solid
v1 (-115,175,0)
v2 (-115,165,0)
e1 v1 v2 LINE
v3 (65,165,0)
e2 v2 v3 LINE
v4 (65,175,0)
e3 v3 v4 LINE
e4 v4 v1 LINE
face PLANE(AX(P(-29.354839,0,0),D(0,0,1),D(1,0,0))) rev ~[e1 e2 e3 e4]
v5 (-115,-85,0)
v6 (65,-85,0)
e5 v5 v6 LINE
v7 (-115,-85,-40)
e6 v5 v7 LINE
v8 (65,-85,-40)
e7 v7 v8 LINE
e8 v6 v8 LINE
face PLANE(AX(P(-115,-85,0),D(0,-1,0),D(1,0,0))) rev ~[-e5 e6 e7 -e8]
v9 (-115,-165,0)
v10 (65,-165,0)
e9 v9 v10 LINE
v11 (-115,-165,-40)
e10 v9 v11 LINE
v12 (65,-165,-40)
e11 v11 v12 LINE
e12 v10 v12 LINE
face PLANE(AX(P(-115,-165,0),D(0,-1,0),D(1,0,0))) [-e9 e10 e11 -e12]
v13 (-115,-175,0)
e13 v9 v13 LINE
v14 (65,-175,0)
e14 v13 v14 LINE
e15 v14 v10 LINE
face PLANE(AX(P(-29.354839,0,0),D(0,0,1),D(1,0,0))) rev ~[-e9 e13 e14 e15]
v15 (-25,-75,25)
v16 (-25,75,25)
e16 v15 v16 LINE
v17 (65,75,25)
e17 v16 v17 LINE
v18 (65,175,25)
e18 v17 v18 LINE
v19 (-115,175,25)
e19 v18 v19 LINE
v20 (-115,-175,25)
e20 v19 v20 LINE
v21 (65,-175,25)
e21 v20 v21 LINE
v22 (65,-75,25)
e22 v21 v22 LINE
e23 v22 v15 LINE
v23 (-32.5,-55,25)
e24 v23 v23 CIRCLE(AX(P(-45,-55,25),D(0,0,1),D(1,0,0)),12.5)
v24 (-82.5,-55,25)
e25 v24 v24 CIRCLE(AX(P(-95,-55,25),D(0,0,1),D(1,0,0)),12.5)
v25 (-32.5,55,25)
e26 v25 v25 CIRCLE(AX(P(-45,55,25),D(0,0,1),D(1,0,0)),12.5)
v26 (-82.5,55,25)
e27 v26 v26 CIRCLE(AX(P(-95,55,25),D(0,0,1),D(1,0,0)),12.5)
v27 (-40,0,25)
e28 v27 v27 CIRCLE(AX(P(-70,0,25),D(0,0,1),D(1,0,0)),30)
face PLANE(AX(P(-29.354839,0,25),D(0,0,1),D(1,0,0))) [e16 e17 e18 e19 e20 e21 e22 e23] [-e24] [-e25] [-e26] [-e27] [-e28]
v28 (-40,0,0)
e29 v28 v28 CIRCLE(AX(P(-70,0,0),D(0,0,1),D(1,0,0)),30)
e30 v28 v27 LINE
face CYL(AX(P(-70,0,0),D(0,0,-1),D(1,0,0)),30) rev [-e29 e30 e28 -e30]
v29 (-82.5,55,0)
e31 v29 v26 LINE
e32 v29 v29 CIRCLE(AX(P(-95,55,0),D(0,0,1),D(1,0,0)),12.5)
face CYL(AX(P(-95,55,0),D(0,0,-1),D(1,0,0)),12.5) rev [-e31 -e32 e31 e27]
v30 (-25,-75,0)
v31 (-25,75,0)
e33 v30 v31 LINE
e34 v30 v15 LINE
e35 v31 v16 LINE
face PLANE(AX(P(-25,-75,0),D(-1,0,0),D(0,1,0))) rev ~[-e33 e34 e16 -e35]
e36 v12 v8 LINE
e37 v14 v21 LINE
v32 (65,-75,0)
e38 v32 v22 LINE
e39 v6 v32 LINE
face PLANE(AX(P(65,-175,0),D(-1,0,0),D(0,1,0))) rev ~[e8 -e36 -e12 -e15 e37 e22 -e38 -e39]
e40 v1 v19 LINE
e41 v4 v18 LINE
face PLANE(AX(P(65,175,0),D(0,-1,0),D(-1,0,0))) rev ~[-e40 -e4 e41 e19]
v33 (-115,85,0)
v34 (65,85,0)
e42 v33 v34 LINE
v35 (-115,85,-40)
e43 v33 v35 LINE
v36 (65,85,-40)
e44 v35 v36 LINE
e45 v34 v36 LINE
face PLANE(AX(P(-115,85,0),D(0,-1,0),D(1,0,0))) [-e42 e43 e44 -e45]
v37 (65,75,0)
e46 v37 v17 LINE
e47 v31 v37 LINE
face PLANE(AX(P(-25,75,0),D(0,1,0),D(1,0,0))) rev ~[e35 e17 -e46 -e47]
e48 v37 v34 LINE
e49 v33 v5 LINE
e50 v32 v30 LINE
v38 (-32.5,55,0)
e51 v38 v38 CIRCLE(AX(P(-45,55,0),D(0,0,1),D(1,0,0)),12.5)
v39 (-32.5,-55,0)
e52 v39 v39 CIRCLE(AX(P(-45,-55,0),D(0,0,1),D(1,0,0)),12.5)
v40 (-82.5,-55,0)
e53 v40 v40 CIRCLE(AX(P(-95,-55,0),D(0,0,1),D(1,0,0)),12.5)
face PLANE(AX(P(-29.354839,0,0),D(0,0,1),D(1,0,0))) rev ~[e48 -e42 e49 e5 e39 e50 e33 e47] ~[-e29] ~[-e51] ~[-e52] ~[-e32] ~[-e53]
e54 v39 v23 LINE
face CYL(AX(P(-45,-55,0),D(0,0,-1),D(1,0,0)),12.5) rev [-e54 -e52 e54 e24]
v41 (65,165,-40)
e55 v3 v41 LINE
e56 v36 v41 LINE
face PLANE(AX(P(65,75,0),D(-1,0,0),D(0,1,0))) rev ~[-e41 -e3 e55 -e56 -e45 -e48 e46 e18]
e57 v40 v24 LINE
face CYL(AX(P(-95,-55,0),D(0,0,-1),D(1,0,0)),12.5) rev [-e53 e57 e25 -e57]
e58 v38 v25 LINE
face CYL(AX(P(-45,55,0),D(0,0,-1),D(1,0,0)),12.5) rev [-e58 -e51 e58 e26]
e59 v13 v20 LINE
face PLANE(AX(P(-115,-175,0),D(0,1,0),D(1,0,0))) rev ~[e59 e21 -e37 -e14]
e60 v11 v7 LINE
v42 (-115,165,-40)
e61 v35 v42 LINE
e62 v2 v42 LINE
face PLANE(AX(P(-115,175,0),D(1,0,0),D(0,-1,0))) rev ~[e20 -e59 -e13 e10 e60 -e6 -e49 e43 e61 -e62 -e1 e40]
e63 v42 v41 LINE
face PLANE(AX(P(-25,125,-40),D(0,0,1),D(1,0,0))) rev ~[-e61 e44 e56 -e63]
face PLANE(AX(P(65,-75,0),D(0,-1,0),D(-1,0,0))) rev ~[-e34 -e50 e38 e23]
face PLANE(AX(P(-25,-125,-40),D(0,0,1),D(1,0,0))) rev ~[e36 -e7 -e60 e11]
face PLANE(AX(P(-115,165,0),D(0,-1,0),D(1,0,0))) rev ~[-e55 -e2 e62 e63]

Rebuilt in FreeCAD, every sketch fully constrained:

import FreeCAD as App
import Part
import Sketcher

V = App.Vector


def add_polygon(sketch, points):
    """Adds a closed chain of lines whose ends are joined by coincident constraints."""
    first, n = sketch.GeometryCount, len(points)
    for a, b in zip(points, points[1:] + points[:1]):
        sketch.addGeometry(Part.LineSegment(App.Vector(*a, 0), App.Vector(*b, 0)), False)
    for i in range(n):
        sketch.addConstraint(Sketcher.Constraint("Coincident", first + i, 2, first + (i + 1) % n, 1))

doc = App.newDocument("Part")
params = doc.addObject("Spreadsheet::Sheet", "Params")
for row, (alias, value) in enumerate([
    ("sketch1_diameter", "25 mm"),
    ("sketch1_diameter2", "60 mm"),
    ("sketch1_width", "180 mm"),
    ("sketch1_width2", "90 mm"),
    ("sketch1_height", "100 mm"),
    ("pad1_length", "25 mm"),
    ("sketch2_width", "180 mm"),
    ("sketch2_height", "80 mm"),
    ("pad2_length", "40 mm"),
], start=1):
    params.set(f"A{row}", alias)
    params.set(f"B{row}", "=" + value)
    params.setAlias(f"B{row}", alias)

body = doc.addObject("PartDesign::Body", "Body")

sketch1 = doc.addObject("Sketcher::SketchObject", "Sketch")
body.addObject(sketch1)
sketch1.AttachmentSupport = (doc.XY_Plane, [""])
sketch1.MapMode = "FlatFace"
add_polygon(sketch1, [(65, 75), (65, 175), (-115, 175), (-115, -175), (65, -175), (65, -75), (-25, -75), (-25, 75)])
sketch1.addGeometry(Part.Circle(V(-95, -55, 0), V(0, 0, 1), 12), False)
sketch1.addGeometry(Part.Circle(V(-45, -55, 0), V(0, 0, 1), 12), False)
sketch1.addGeometry(Part.Circle(V(-95, 55, 0), V(0, 0, 1), 12), False)
sketch1.addGeometry(Part.Circle(V(-70, 0, 0), V(0, 0, 1), 30), False)
sketch1.addGeometry(Part.Circle(V(-45, 55, 0), V(0, 0, 1), 12), False)
sketch1.addConstraint(Sketcher.Constraint("Vertical", 0))
sketch1.addConstraint(Sketcher.Constraint("Horizontal", 1))
sketch1.addConstraint(Sketcher.Constraint("Vertical", 2))
sketch1.addConstraint(Sketcher.Constraint("Horizontal", 3))
sketch1.addConstraint(Sketcher.Constraint("Vertical", 4))
sketch1.addConstraint(Sketcher.Constraint("Horizontal", 5))
sketch1.addConstraint(Sketcher.Constraint("Vertical", 6))
sketch1.addConstraint(Sketcher.Constraint("Horizontal", 7))
sketch1.addConstraint(Sketcher.Constraint("Equal", 8, 9))
sketch1.addConstraint(Sketcher.Constraint("Equal", 9, 10))
sketch1.addConstraint(Sketcher.Constraint("Equal", 10, 12))
sketch1.addConstraint(Sketcher.Constraint("Symmetric", 8, 3, 10, 3, -1))
sketch1.addConstraint(Sketcher.Constraint("Symmetric", 9, 3, 12, 3, -1))
sketch1.addConstraint(Sketcher.Constraint("Symmetric", 0, 2, 3, 2, -1))
sketch1.addConstraint(Sketcher.Constraint("PointOnObject", 11, 3, -1))
sketch1.addConstraint(Sketcher.Constraint("Horizontal", 8, 3, 9, 3))
sketch1.addConstraint(Sketcher.Constraint("Equal", 0, 4))
sketch1.addConstraint(Sketcher.Constraint("Diameter", 8, 25.0))
sketch1.addConstraint(Sketcher.Constraint("Diameter", 11, 60.0))
sketch1.addConstraint(Sketcher.Constraint("DistanceX", 1, 2, 1, 1, 180.0))
sketch1.addConstraint(Sketcher.Constraint("DistanceX", 5, 2, 5, 1, 90.0))
sketch1.addConstraint(Sketcher.Constraint("DistanceY", 0, 1, 0, 2, 100.0))
sketch1.addConstraint(Sketcher.Constraint("DistanceY", 2, 2, 2, 1, 350.0))
sketch1.addConstraint(Sketcher.Constraint("DistanceX", 8, 3, -1, 1, 95.0))
sketch1.addConstraint(Sketcher.Constraint("DistanceY", 8, 3, -1, 1, 55.0))
sketch1.addConstraint(Sketcher.Constraint("DistanceX", 9, 3, -1, 1, 45.0))
sketch1.addConstraint(Sketcher.Constraint("DistanceX", 11, 3, -1, 1, 70.0))
sketch1.addConstraint(Sketcher.Constraint("DistanceX", -1, 1, 0, 2, 65.0))
sketch1.setExpression("Constraints[25]", "Params.sketch1_diameter")
sketch1.setExpression("Constraints[26]", "Params.sketch1_diameter2")
sketch1.setExpression("Constraints[27]", "Params.sketch1_width")
sketch1.setExpression("Constraints[28]", "Params.sketch1_width2")
sketch1.setExpression("Constraints[29]", "Params.sketch1_height")
pad1 = doc.addObject("PartDesign::Pad", "Pad")
body.addObject(pad1)
pad1.Profile = sketch1
pad1.setExpression("Length", "Params.pad1_length")

sketch2 = doc.addObject("Sketcher::SketchObject", "Sketch001")
body.addObject(sketch2)
sketch2.AttachmentSupport = (doc.XY_Plane, [""])
sketch2.MapMode = "FlatFace"
add_polygon(sketch2, [(-115, -85), (-115, -165), (65, -165), (65, -85)])
add_polygon(sketch2, [(-115, 165), (-115, 85), (65, 85), (65, 165)])
sketch2.addConstraint(Sketcher.Constraint("Vertical", 0))
sketch2.addConstraint(Sketcher.Constraint("Horizontal", 1))
sketch2.addConstraint(Sketcher.Constraint("Vertical", 2))
sketch2.addConstraint(Sketcher.Constraint("Horizontal", 3))
sketch2.addConstraint(Sketcher.Constraint("Vertical", 4))
sketch2.addConstraint(Sketcher.Constraint("Horizontal", 5))
sketch2.addConstraint(Sketcher.Constraint("Vertical", 6))
sketch2.addConstraint(Sketcher.Constraint("Horizontal", 7))
sketch2.addConstraint(Sketcher.Constraint("Symmetric", 3, 2, 4, 2, -1))
sketch2.addConstraint(Sketcher.Constraint("Symmetric", 1, 2, 6, 2, -1))
sketch2.addConstraint(Sketcher.Constraint("DistanceX", 1, 1, 1, 2, 180.0))
sketch2.addConstraint(Sketcher.Constraint("DistanceY", 0, 2, 0, 1, 80.0))
sketch2.addConstraint(Sketcher.Constraint("DistanceX", 0, 2, -1, 1, 115.0))
sketch2.addConstraint(Sketcher.Constraint("DistanceY", 0, 2, -1, 1, 165.0))
sketch2.setExpression("Constraints[18]", "Params.sketch2_width")
sketch2.setExpression("Constraints[19]", "Params.sketch2_height")
pad2 = doc.addObject("PartDesign::Pad", "Pad001")
body.addObject(pad2)
pad2.Profile = sketch2
pad2.setExpression("Length", "Params.pad2_length")
pad2.Reversed = True

doc.recompute()
